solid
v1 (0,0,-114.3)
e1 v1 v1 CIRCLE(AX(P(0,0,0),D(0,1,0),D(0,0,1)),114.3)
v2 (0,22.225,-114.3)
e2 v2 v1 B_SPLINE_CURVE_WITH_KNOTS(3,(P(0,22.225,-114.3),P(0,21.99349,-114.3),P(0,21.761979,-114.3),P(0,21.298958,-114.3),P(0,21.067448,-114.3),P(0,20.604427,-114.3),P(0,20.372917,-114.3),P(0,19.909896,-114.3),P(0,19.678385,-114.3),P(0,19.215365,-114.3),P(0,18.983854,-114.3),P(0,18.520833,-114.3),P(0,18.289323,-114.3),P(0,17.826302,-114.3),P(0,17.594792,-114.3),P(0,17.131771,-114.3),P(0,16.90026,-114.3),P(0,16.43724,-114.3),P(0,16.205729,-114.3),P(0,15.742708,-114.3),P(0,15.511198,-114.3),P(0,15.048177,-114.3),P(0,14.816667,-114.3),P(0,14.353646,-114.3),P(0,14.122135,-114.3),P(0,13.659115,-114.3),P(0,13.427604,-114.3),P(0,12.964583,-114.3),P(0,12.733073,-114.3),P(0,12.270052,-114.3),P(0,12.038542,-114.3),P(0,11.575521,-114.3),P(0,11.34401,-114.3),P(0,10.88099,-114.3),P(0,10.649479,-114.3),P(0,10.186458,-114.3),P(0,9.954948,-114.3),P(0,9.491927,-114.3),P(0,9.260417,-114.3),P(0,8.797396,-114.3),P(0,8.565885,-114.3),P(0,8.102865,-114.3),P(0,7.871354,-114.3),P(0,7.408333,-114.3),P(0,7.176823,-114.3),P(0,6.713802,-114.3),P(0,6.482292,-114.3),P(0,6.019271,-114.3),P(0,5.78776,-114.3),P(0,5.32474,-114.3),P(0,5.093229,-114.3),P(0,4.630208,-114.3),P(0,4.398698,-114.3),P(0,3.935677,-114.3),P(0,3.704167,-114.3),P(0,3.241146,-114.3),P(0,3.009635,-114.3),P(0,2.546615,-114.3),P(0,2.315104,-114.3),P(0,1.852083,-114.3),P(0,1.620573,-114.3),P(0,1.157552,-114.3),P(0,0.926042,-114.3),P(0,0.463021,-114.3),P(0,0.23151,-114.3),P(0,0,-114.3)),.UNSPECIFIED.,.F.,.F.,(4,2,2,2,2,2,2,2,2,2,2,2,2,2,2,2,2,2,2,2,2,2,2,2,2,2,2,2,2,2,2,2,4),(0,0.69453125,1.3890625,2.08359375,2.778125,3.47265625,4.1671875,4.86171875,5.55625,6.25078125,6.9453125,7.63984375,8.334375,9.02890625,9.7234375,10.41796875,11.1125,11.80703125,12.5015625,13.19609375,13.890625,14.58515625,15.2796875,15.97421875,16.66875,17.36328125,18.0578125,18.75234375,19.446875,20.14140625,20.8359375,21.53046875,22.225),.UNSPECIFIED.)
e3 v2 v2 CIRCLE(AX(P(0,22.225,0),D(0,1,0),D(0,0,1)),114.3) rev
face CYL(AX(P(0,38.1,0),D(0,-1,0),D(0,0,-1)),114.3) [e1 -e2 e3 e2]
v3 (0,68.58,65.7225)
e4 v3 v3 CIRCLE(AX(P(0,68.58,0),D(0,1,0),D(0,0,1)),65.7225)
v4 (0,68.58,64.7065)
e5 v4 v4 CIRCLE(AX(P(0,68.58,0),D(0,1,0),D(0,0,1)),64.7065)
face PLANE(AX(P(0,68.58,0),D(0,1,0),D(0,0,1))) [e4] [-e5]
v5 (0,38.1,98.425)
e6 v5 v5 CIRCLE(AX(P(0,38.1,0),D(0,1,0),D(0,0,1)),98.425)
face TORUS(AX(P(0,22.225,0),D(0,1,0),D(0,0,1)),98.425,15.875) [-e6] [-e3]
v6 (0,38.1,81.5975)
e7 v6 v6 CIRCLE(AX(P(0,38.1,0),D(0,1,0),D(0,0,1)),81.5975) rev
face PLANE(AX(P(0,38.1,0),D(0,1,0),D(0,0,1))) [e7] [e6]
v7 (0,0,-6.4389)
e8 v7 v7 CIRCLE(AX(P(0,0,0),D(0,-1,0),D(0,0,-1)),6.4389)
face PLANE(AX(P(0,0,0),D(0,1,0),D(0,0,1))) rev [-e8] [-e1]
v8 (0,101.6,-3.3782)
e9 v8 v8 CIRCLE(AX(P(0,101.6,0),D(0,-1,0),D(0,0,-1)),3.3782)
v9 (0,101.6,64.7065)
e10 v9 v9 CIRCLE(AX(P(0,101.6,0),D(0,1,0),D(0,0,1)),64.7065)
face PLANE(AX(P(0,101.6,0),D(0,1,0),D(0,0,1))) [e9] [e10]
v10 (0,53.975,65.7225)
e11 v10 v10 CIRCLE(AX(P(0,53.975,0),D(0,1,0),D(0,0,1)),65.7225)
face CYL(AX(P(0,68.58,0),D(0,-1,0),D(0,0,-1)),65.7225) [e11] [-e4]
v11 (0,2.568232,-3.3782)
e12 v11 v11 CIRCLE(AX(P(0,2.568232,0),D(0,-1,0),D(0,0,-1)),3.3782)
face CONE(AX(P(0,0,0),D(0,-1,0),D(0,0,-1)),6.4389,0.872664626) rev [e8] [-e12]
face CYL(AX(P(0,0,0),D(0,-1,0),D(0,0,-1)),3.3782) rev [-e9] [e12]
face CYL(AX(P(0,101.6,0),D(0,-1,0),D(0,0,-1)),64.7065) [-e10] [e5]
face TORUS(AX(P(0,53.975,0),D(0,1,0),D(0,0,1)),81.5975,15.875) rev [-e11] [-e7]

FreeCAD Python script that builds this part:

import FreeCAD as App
import Part
import Sketcher
from FreeCAD import Vector
Q = App.Units.Quantity


def edges_at(feature, points):
    """Names of the edges that pass closest to the given points."""
    edges = feature.Shape.Edges
    near = lambda p: min(range(len(edges)), key=lambda i: edges[i].distToShape(Part.Vertex(*p))[0])
    return sorted({f"Edge{near(p) + 1}" for p in points})

doc = App.newDocument("Part")
body = doc.addObject("PartDesign::Body", "Body")

sketch1 = doc.addObject("Sketcher::SketchObject", "Sketch")
body.addObject(sketch1)
sketch1.AttachmentSupport = (doc.XZ_Plane, [""])
sketch1.MapMode = "FlatFace"
sketch1.addGeometry([
    Part.Circle(Vector(0, 0, 0), Vector(0, 0, 1), 114),
    Part.Circle(Vector(0, 0, 0), Vector(0, 0, 1), 66),
], False)
sketch1.addConstraint([
    Sketcher.Constraint("Coincident", 0, 3, -1, 1),
    Sketcher.Constraint("Coincident", 1, 3, -1, 1),
    Sketcher.Constraint("Diameter", 0, Q("9 in")),
    Sketcher.Constraint("Diameter", 1, Q("5.175 in")),
])
pad1 = doc.addObject("PartDesign::Pad", "Pad")
body.addObject(pad1)
pad1.Profile = sketch1
pad1.Length = Q("1.5 in")
pad1.Reversed = True

sketch2 = doc.addObject("Sketcher::SketchObject", "Sketch001")
body.addObject(sketch2)
sketch2.AttachmentSupport = (doc.XZ_Plane, [""])
sketch2.MapMode = "FlatFace"
sketch2.addGeometry([
    Part.Circle(Vector(0, 0, 0), Vector(0, 0, 1), 66),
    Part.Circle(Vector(0, 0, 0), Vector(0, 0, 1), 65),
], False)
sketch2.addConstraint([
    Sketcher.Constraint("Coincident", 0, 3, -1, 1),
    Sketcher.Constraint("Coincident", 1, 3, -1, 1),
    Sketcher.Constraint("Diameter", 0, Q("5.175 in")),
    Sketcher.Constraint("Diameter", 1, Q("5.095 in")),
])
pad2 = doc.addObject("PartDesign::Pad", "Pad001")
body.addObject(pad2)
pad2.Profile = sketch2
pad2.Length = Q("2.7 in")
pad2.Reversed = True

sketch3 = doc.addObject("Sketcher::SketchObject", "Sketch002")
body.addObject(sketch3)
sketch3.AttachmentSupport = (doc.XZ_Plane, [""])
sketch3.MapMode = "FlatFace"
sketch3.addGeometry(Part.Circle(Vector(0, 0, 0), Vector(0, 0, 1), 65), False)
sketch3.addConstraint([
    Sketcher.Constraint("Coincident", 0, 3, -1, 1),
    Sketcher.Constraint("Diameter", 0, Q("5.095 in")),
])
pad3 = doc.addObject("PartDesign::Pad", "Pad002")
body.addObject(pad3)
pad3.Profile = sketch3
pad3.Length = Q("4 in")
pad3.Reversed = True

sketch4 = doc.addObject("Sketcher::SketchObject", "Sketch003")
body.addObject(sketch4)
sketch4.AttachmentSupport = (doc.XZ_Plane, [""])
sketch4.MapMode = "FlatFace"
sketch4.addGeometry(Part.Circle(Vector(0, 0, 0), Vector(0, 0, 1), 3.4), False)
sketch4.addConstraint([
    Sketcher.Constraint("Coincident", 0, 3, -1, 1),
    Sketcher.Constraint("Diameter", 0, Q("0.266 in")),
])
doc.recompute()
hole = doc.addObject("PartDesign::Hole", "Hole")
body.addObject(hole)
hole.Profile = sketch4
hole.ThreadType = "None"
hole.Diameter = Q("0.266 in")
hole.DepthType = "ThroughAll"
hole.HoleCutType = "Countersink"
hole.HoleCutDiameter = Q("0.507 in")
hole.HoleCutCountersinkAngle = 100
doc.recompute()

fillet = doc.addObject("PartDesign::Fillet", "Fillet")
body.addObject(fillet)
fillet.Base = (hole, edges_at(hole, [(0, 38.1, -65.722)]))
fillet.Radius = Q("0.625 in")
doc.recompute()

fillet2 = doc.addObject("PartDesign::Fillet", "Fillet001")
body.addObject(fillet2)
fillet2.Base = (fillet, edges_at(fillet, [(0, 38.1, 114.3)]))
fillet2.Radius = Q("0.625 in")

doc.recompute()
